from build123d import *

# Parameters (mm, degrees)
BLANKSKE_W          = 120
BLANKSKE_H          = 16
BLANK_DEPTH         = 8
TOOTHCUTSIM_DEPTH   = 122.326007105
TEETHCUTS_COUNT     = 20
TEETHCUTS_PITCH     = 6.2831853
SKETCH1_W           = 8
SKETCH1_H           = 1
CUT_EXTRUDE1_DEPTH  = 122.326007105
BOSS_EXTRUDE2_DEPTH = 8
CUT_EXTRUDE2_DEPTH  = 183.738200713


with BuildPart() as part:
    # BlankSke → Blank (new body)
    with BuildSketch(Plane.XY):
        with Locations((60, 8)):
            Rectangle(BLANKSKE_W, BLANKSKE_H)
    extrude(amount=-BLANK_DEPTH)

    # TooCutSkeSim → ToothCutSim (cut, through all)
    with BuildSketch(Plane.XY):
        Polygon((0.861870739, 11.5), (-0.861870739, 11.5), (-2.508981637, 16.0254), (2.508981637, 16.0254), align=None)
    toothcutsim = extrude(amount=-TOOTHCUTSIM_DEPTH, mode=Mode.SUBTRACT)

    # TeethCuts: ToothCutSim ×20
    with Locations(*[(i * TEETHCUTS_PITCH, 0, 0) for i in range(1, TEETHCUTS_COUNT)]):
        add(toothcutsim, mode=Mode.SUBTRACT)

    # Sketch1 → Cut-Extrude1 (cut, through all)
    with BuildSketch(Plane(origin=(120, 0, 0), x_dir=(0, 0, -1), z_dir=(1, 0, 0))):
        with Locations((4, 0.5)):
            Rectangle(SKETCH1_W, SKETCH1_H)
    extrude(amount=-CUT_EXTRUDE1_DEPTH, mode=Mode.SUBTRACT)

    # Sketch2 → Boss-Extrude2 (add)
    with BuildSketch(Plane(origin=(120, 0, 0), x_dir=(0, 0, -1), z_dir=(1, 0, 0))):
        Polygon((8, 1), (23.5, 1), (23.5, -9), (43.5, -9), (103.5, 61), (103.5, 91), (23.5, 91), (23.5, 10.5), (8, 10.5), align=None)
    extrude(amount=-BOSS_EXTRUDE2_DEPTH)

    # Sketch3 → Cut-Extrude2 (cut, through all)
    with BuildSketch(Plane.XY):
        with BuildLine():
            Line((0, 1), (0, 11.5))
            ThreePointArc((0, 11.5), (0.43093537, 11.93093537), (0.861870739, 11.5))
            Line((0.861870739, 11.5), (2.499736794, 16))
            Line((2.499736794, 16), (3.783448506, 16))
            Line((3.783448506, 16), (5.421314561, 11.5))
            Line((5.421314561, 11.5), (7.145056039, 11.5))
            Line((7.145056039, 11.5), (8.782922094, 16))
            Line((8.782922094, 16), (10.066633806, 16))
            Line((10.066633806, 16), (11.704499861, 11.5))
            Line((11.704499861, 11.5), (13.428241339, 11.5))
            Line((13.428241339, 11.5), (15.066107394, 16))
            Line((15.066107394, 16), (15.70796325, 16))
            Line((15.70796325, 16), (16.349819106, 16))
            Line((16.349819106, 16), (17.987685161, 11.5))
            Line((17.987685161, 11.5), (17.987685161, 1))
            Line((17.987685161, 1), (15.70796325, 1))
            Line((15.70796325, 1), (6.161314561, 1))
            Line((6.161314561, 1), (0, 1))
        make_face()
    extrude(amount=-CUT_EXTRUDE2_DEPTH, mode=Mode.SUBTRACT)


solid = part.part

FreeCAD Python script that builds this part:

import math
import FreeCAD as App
import Part
import Sketcher
from FreeCAD import Vector
Q = App.Units.Quantity


def add_polygon(sketch, points):
    """Adds a closed chain of lines whose ends are joined by coincident constraints."""
    first, n = sketch.GeometryCount, len(points)
    for a, b in zip(points, points[1:] + points[:1]):
        sketch.addGeometry(Part.LineSegment(App.Vector(*a, 0), App.Vector(*b, 0)), False)
    for i in range(n):
        sketch.addConstraint(Sketcher.Constraint("Coincident", first + i, 2, first + (i + 1) % n, 1))

doc = App.newDocument("Part")
body = doc.addObject("PartDesign::Body", "Body")

# Sketch on XY plane
sketch1 = body.newObject("Sketcher::SketchObject", "Sketch")
sketch1.AttachmentSupport = (doc.getObject("XY_Plane"), [""])
sketch1.MapMode = "FlatFace"
add_polygon(sketch1, [(0, 16), (0, 0), (120, 0), (120, 16)])  # lines 0-3
sketch1.addConstraint([
    Sketcher.Constraint("Vertical", 0),
    Sketcher.Constraint("Horizontal", 1),
    Sketcher.Constraint("Vertical", 2),
    Sketcher.Constraint("Horizontal", 3),
    Sketcher.Constraint("Coincident", 0, 2, -1, 1),
    Sketcher.Constraint("DistanceX", 1, 1, 1, 2, 120.0),
    Sketcher.Constraint("DistanceY", 0, 2, 0, 1, 16.0),
])
pad1 = body.newObject("PartDesign::Pad", "Pad")
pad1.Profile = sketch1
pad1.Length = 8
pad1.Reversed = True

# Sketch on XY plane
sketch2 = body.newObject("Sketcher::SketchObject", "Sketch001")
sketch2.AttachmentSupport = (doc.getObject("XY_Plane"), [""])
sketch2.MapMode = "FlatFace"
add_polygon(sketch2, [(-0.9, 11.5), (0.9, 11.5), (2.5, 16), (-2.5, 16)])  # lines 0-3
sketch2.addConstraint([
    Sketcher.Constraint("Horizontal", 0),
    Sketcher.Constraint("Horizontal", 2),
    Sketcher.Constraint("Equal", 1, 3),
    Sketcher.Constraint("Angle", 1, Q("70 deg")),
    Sketcher.Constraint("DistanceY", -1, 1, 0, 2, 11.5),
    Sketcher.Constraint("DistanceX", 0, 1, 0, 2, 1.723741),
    Sketcher.Constraint("DistanceY", -1, 1, 1, 2, 16.0254),
    Sketcher.Constraint("DistanceX", -1, 1, 0, 2, 0.861871),
])
pocket1 = body.newObject("PartDesign::Pocket", "Pocket")
pocket1.Profile = sketch2
pocket1.Type = "ThroughAll"
doc.recompute()

linearpattern = body.newObject("PartDesign::LinearPattern", "LinearPattern")
linearpattern.Originals = [pocket1]
linearpattern.Direction = (doc.getObject("X_Axis"), [""])
linearpattern.Mode = "offset"
linearpattern.Offset = 6.283185
linearpattern.Occurrences = 20
body.Tip = linearpattern

# Sketch on YZ plane
sketch3 = body.newObject("Sketcher::SketchObject", "Sketch002")
sketch3.AttachmentSupport = (doc.getObject("YZ_Plane"), [""])
sketch3.MapMode = "FlatFace"
sketch3.AttachmentOffset = App.Placement(Vector(0, 0, 120), App.Rotation())
add_polygon(sketch3, [(1, 0), (0, 0), (0, -8), (1, -8)])  # lines 0-3
sketch3.addConstraint([
    Sketcher.Constraint("Horizontal", 0),
    Sketcher.Constraint("Vertical", 1),
    Sketcher.Constraint("Horizontal", 2),
    Sketcher.Constraint("Vertical", 3),
    Sketcher.Constraint("Coincident", 0, 2, -1, 1),
    Sketcher.Constraint("DistanceX", 0, 2, 0, 1, 1.0),
    Sketcher.Constraint("DistanceY", 1, 2, 1, 1, 8.0),
])
pocket2 = body.newObject("PartDesign::Pocket", "Pocket001")
pocket2.Profile = sketch3
pocket2.Type = "ThroughAll"

# Sketch on YZ plane
sketch4 = body.newObject("Sketcher::SketchObject", "Sketch003")
sketch4.AttachmentSupport = (doc.getObject("YZ_Plane"), [""])
sketch4.MapMode = "FlatFace"
sketch4.AttachmentOffset = App.Placement(Vector(0, 0, 120), App.Rotation())
add_polygon(sketch4, [(1, -8), (1, -24), (-9, -24), (-9, -44), (61, -104), (91, -104), (91, -24), (10, -24), (10, -8)])  # lines 0-8
sketch4.addConstraint([
    Sketcher.Constraint("Vertical", 0),
    Sketcher.Constraint("Horizontal", 1),
    Sketcher.Constraint("Vertical", 2),
    Sketcher.Constraint("Horizontal", 4),
    Sketcher.Constraint("Vertical", 5),
    Sketcher.Constraint("Horizontal", 6),
    Sketcher.Constraint("Vertical", 7),
    Sketcher.Constraint("Horizontal", 8),
    Sketcher.Constraint("Horizontal", 1, 2, 5, 2),
    Sketcher.Constraint("DistanceX", 1, 2, 1, 1, 10.0),
    Sketcher.Constraint("DistanceX", 4, 1, 4, 2, 30.0),
    Sketcher.Constraint("DistanceY", 2, 2, 2, 1, 20.0),
    Sketcher.Constraint("DistanceY", 5, 1, 5, 2, 80.0),
    Sketcher.Constraint("DistanceX", 6, 2, 6, 1, 80.5),
    Sketcher.Constraint("DistanceX", 8, 2, 8, 1, 9.5),
    Sketcher.Constraint("DistanceY", 0, 2, 0, 1, 15.5),
    Sketcher.Constraint("DistanceX", -1, 1, 0, 2, 1.0),
    Sketcher.Constraint("DistanceY", 7, 2, -1, 1, 8.0),
])
pad2 = body.newObject("PartDesign::Pad", "Pad001")
pad2.Profile = sketch4
pad2.Length = 8
pad2.Reversed = True

# Sketch on XY plane
sketch5 = body.newObject("Sketcher::SketchObject", "Sketch004")
sketch5.AttachmentSupport = (doc.getObject("XY_Plane"), [""])
sketch5.MapMode = "FlatFace"
sketch5.addGeometry([
    Part.LineSegment(Vector(0, 11.5, 0), Vector(0, 1, 0)),  # 0
    Part.LineSegment(Vector(0, 1, 0), Vector(17.99, 1, 0)),  # 1
    Part.LineSegment(Vector(17.99, 1, 0), Vector(17.99, 11.5, 0)),  # 2
    Part.LineSegment(Vector(17.99, 11.5, 0), Vector(16.35, 16, 0)),  # 3
    Part.LineSegment(Vector(16.35, 16, 0), Vector(15.07, 16, 0)),  # 4
    Part.LineSegment(Vector(15.07, 16, 0), Vector(13.43, 11.5, 0)),  # 5
    Part.LineSegment(Vector(13.43, 11.5, 0), Vector(11.7, 11.5, 0)),  # 6
    Part.LineSegment(Vector(11.7, 11.5, 0), Vector(10.07, 16, 0)),  # 7
    Part.LineSegment(Vector(10.07, 16, 0), Vector(8.78, 16, 0)),  # 8
    Part.LineSegment(Vector(8.78, 16, 0), Vector(7.15, 11.5, 0)),  # 9
    Part.LineSegment(Vector(7.15, 11.5, 0), Vector(5.42, 11.5, 0)),  # 10
    Part.LineSegment(Vector(5.42, 11.5, 0), Vector(3.78, 16, 0)),  # 11
    Part.LineSegment(Vector(3.78, 16, 0), Vector(2.5, 16, 0)),  # 12
    Part.LineSegment(Vector(2.5, 16, 0), Vector(0.86, 11.5, 0)),  # 13
    Part.ArcOfCircle(Part.Circle(Vector(0.43, 11.5, 0), Vector(0, 0, 1), 0.43), math.radians(0), math.radians(180)),  # 14
], False)
sketch5.addConstraint([
    Sketcher.Constraint("Coincident", 0, 2, 1, 1),
    Sketcher.Constraint("Coincident", 1, 2, 2, 1),
    Sketcher.Constraint("Coincident", 2, 2, 3, 1),
    Sketcher.Constraint("Coincident", 3, 2, 4, 1),
    Sketcher.Constraint("Coincident", 4, 2, 5, 1),
    Sketcher.Constraint("Coincident", 5, 2, 6, 1),
    Sketcher.Constraint("Coincident", 6, 2, 7, 1),
    Sketcher.Constraint("Coincident", 7, 2, 8, 1),
    Sketcher.Constraint("Coincident", 8, 2, 9, 1),
    Sketcher.Constraint("Coincident", 9, 2, 10, 1),
    Sketcher.Constraint("Coincident", 10, 2, 11, 1),
    Sketcher.Constraint("Coincident", 11, 2, 12, 1),
    Sketcher.Constraint("Coincident", 12, 2, 13, 1),
    Sketcher.Constraint("Coincident", 13, 2, 14, 1),
    Sketcher.Constraint("Tangent", 14, 2, 0, 1),
    Sketcher.Constraint("Vertical", 0),
    Sketcher.Constraint("Horizontal", 1),
    Sketcher.Constraint("Vertical", 2),
    Sketcher.Constraint("Horizontal", 4),
    Sketcher.Constraint("Horizontal", 6),
    Sketcher.Constraint("Horizontal", 8),
    Sketcher.Constraint("Horizontal", 10),
    Sketcher.Constraint("Horizontal", 12),
    Sketcher.Constraint("PointOnObject", 0, 2, -2),
    Sketcher.Constraint("Parallel", 3, 7),
    Sketcher.Constraint("Parallel", 5, 9),
    Sketcher.Constraint("Parallel", 7, 11),
    Sketcher.Constraint("Parallel", 9, 13),
    Sketcher.Constraint("Horizontal", 14, 3, 2, 2),
    Sketcher.Constraint("Horizontal", 2, 2, 5, 2),
    Sketcher.Constraint("Horizontal", 4, 2, 7, 2),
    Sketcher.Constraint("Horizontal", 6, 2, 9, 2),
    Sketcher.Constraint("Horizontal", 8, 2, 11, 2),
    Sketcher.Constraint("Horizontal", 10, 2, 13, 2),
    Sketcher.Constraint("Equal", 4, 8),
    Sketcher.Constraint("Equal", 6, 10),
    Sketcher.Constraint("Equal", 8, 12),
    Sketcher.Constraint("Equal", 3, 5),
    Sketcher.Constraint("Angle", 3, Q("110 deg")),
    Sketcher.Constraint("DistanceY", 0, 2, 0, 1, 10.5),
    Sketcher.Constraint("DistanceY", -1, 1, 0, 2, 1.0),
    Sketcher.Constraint("DistanceY", -1, 1, 3, 2, 16.0),
    Sketcher.Constraint("Radius", 14, 0.430935),
    Sketcher.Constraint("DistanceX", 4, 2, 4, 1, 1.283712),
    Sketcher.Constraint("DistanceX", 6, 2, 6, 1, 1.723741),
])
pocket3 = body.newObject("PartDesign::Pocket", "Pocket002")
pocket3.Profile = sketch5
pocket3.Type = "ThroughAll"

doc.recompute()
